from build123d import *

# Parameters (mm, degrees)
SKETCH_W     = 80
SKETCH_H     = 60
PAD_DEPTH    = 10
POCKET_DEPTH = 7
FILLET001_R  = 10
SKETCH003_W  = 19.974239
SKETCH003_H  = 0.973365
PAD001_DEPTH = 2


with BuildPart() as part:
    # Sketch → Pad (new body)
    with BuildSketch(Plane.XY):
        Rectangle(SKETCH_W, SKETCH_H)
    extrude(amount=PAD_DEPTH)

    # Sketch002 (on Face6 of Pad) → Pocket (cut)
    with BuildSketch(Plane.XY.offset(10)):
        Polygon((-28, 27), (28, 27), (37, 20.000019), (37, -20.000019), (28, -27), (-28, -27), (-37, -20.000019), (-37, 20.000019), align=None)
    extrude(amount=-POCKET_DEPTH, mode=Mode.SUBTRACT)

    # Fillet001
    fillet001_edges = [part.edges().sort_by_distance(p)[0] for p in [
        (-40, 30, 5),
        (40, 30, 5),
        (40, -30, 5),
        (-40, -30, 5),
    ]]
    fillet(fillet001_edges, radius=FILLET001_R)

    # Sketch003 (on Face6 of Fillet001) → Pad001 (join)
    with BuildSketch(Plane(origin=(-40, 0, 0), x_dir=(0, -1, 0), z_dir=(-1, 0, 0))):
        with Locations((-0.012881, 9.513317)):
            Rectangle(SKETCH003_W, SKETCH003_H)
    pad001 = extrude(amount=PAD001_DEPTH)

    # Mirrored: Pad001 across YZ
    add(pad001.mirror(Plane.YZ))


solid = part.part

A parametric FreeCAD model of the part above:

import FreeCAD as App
import Part
import Sketcher

V = App.Vector


def edges_at(feature, points):
    """Names of the edges that pass closest to the given points."""
    edges = feature.Shape.Edges
    near = lambda p: min(range(len(edges)), key=lambda i: edges[i].distToShape(Part.Vertex(*p))[0])
    return sorted({f"Edge{near(p) + 1}" for p in points})

doc = App.newDocument("Part")
body = doc.addObject("PartDesign::Body", "Body")

# Sketch on XY plane
sketch1 = body.newObject("Sketcher::SketchObject", "Sketch")
sketch1.AttachmentSupport = (doc.getObject("XY_Plane"), [""])
sketch1.MapMode = "FlatFace"
sketch1.addGeometry(Part.LineSegment(V(-40, 30, 0), V(-40, -30, 0)), False)
sketch1.addGeometry(Part.LineSegment(V(-40, -30, 0), V(40, -30, 0)), False)
sketch1.addGeometry(Part.LineSegment(V(40, -30, 0), V(40, 30, 0)), False)
sketch1.addGeometry(Part.LineSegment(V(40, 30, 0), V(-40, 30, 0)), False)
sketch1.addConstraint(Sketcher.Constraint("Coincident", 0, 2, 1, 1))
sketch1.addConstraint(Sketcher.Constraint("Coincident", 1, 2, 2, 1))
sketch1.addConstraint(Sketcher.Constraint("Coincident", 2, 2, 3, 1))
sketch1.addConstraint(Sketcher.Constraint("Coincident", 3, 2, 0, 1))
sketch1.addConstraint(Sketcher.Constraint("Vertical", 0))
sketch1.addConstraint(Sketcher.Constraint("Horizontal", 1))
sketch1.addConstraint(Sketcher.Constraint("Vertical", 2))
sketch1.addConstraint(Sketcher.Constraint("Horizontal", 3))
sketch1.addConstraint(Sketcher.Constraint("Symmetric", 0, 2, 2, 2, -1, 1))
sketch1.addConstraint(Sketcher.Constraint("DistanceX", 1, 1, 1, 2, 80.0))
sketch1.addConstraint(Sketcher.Constraint("DistanceY", 0, 2, 0, 1, 60.0))
pad1 = body.newObject("PartDesign::Pad", "Pad")
pad1.Profile = sketch1
pad1.Length = 10

# Sketch on XY plane
sketch2 = body.newObject("Sketcher::SketchObject", "Sketch001")
sketch2.AttachmentSupport = (doc.getObject("XY_Plane"), [""])
sketch2.MapMode = "FlatFace"
sketch2.AttachmentOffset = App.Placement(V(0, 0, 10), App.Rotation())
sketch2.addGeometry(Part.LineSegment(V(28, 27, 0), V(-28, 27, 0)), False)
sketch2.addGeometry(Part.LineSegment(V(-28, 27, 0), V(-37, 20, 0)), False)
sketch2.addGeometry(Part.LineSegment(V(-37, 20, 0), V(-37, -20, 0)), False)
sketch2.addGeometry(Part.LineSegment(V(-37, -20, 0), V(-28, -27, 0)), False)
sketch2.addGeometry(Part.LineSegment(V(-28, -27, 0), V(28, -27, 0)), False)
sketch2.addGeometry(Part.LineSegment(V(28, -27, 0), V(37, -20, 0)), False)
sketch2.addGeometry(Part.LineSegment(V(37, -20, 0), V(37, 20, 0)), False)
sketch2.addGeometry(Part.LineSegment(V(37, 20, 0), V(28, 27, 0)), False)
sketch2.addConstraint(Sketcher.Constraint("Coincident", 0, 2, 1, 1))
sketch2.addConstraint(Sketcher.Constraint("Coincident", 1, 2, 2, 1))
sketch2.addConstraint(Sketcher.Constraint("Coincident", 2, 2, 3, 1))
sketch2.addConstraint(Sketcher.Constraint("Coincident", 3, 2, 4, 1))
sketch2.addConstraint(Sketcher.Constraint("Coincident", 4, 2, 5, 1))
sketch2.addConstraint(Sketcher.Constraint("Coincident", 5, 2, 6, 1))
sketch2.addConstraint(Sketcher.Constraint("Coincident", 6, 2, 7, 1))
sketch2.addConstraint(Sketcher.Constraint("Coincident", 7, 2, 0, 1))
sketch2.addConstraint(Sketcher.Constraint("Horizontal", 0))
sketch2.addConstraint(Sketcher.Constraint("Vertical", 2))
sketch2.addConstraint(Sketcher.Constraint("Horizontal", 4))
sketch2.addConstraint(Sketcher.Constraint("Vertical", 6))
sketch2.addConstraint(Sketcher.Constraint("Symmetric", 0, 2, 4, 2, -1, 1))
sketch2.addConstraint(Sketcher.Constraint("Symmetric", 1, 2, 5, 2, -1, 1))
sketch2.addConstraint(Sketcher.Constraint("Parallel", 3, 7))
sketch2.addConstraint(Sketcher.Constraint("Horizontal", 2, 2, 5, 2))
sketch2.addConstraint(Sketcher.Constraint("Horizontal", 1, 2, 6, 2))
sketch2.addConstraint(Sketcher.Constraint("Vertical", 0, 2, 3, 2))
sketch2.addConstraint(Sketcher.Constraint("DistanceX", 0, 2, 0, 1, 56.0))
sketch2.addConstraint(Sketcher.Constraint("DistanceY", -1, 1, 0, 2, 27.0))
sketch2.addConstraint(Sketcher.Constraint("DistanceX", 1, 2, -1, 1, 37.0))
sketch2.addConstraint(Sketcher.Constraint("DistanceY", 2, 2, 2, 1, 40.000038))
pocket1 = body.newObject("PartDesign::Pocket", "Pocket")
pocket1.Profile = sketch2
pocket1.Length = 7
doc.recompute()

fillet = body.newObject("PartDesign::Fillet", "Fillet")
fillet.Base = (pocket1, edges_at(pocket1, [
    (-40, 30, 5),
    (40, 30, 5),
    (40, -30, 5),
    (-40, -30, 5),
]))
fillet.Radius = 10

# Sketch on YZ plane
sketch3 = body.newObject("Sketcher::SketchObject", "Sketch002")
sketch3.AttachmentSupport = (doc.getObject("YZ_Plane"), [""])
sketch3.MapMode = "FlatFace"
sketch3.AttachmentOffset = App.Placement(V(0, 0, -40), App.Rotation())
sketch3.addGeometry(Part.LineSegment(V(10, 10, 0), V(10, 9, 0)), False)
sketch3.addGeometry(Part.LineSegment(V(10, 9, 0), V(-10, 9, 0)), False)
sketch3.addGeometry(Part.LineSegment(V(-10, 9, 0), V(-10, 10, 0)), False)
sketch3.addGeometry(Part.LineSegment(V(-10, 10, 0), V(10, 10, 0)), False)
sketch3.addConstraint(Sketcher.Constraint("Coincident", 0, 2, 1, 1))
sketch3.addConstraint(Sketcher.Constraint("Coincident", 1, 2, 2, 1))
sketch3.addConstraint(Sketcher.Constraint("Coincident", 2, 2, 3, 1))
sketch3.addConstraint(Sketcher.Constraint("Coincident", 3, 2, 0, 1))
sketch3.addConstraint(Sketcher.Constraint("Vertical", 0))
sketch3.addConstraint(Sketcher.Constraint("Horizontal", 1))
sketch3.addConstraint(Sketcher.Constraint("Vertical", 2))
sketch3.addConstraint(Sketcher.Constraint("Horizontal", 3))
sketch3.addConstraint(Sketcher.Constraint("DistanceX", -1, 1, 0, 2, 10.000001))
sketch3.addConstraint(Sketcher.Constraint("DistanceY", -1, 1, 2, 2, 9.999999))
sketch3.addConstraint(Sketcher.Constraint("DistanceX", 1, 2, 1, 1, 19.974239))
sketch3.addConstraint(Sketcher.Constraint("DistanceY", 0, 2, 0, 1, 0.973365))
pad2 = body.newObject("PartDesign::Pad", "Pad001")
pad2.Profile = sketch3
pad2.Length = 2
pad2.Reversed = True
doc.recompute()

mirrored = body.newObject("PartDesign::Mirrored", "Mirrored")
mirrored.Originals = [pad2]
mirrored.MirrorPlane = (doc.getObject("YZ_Plane"), [""])
body.Tip = mirrored

doc.recompute()
